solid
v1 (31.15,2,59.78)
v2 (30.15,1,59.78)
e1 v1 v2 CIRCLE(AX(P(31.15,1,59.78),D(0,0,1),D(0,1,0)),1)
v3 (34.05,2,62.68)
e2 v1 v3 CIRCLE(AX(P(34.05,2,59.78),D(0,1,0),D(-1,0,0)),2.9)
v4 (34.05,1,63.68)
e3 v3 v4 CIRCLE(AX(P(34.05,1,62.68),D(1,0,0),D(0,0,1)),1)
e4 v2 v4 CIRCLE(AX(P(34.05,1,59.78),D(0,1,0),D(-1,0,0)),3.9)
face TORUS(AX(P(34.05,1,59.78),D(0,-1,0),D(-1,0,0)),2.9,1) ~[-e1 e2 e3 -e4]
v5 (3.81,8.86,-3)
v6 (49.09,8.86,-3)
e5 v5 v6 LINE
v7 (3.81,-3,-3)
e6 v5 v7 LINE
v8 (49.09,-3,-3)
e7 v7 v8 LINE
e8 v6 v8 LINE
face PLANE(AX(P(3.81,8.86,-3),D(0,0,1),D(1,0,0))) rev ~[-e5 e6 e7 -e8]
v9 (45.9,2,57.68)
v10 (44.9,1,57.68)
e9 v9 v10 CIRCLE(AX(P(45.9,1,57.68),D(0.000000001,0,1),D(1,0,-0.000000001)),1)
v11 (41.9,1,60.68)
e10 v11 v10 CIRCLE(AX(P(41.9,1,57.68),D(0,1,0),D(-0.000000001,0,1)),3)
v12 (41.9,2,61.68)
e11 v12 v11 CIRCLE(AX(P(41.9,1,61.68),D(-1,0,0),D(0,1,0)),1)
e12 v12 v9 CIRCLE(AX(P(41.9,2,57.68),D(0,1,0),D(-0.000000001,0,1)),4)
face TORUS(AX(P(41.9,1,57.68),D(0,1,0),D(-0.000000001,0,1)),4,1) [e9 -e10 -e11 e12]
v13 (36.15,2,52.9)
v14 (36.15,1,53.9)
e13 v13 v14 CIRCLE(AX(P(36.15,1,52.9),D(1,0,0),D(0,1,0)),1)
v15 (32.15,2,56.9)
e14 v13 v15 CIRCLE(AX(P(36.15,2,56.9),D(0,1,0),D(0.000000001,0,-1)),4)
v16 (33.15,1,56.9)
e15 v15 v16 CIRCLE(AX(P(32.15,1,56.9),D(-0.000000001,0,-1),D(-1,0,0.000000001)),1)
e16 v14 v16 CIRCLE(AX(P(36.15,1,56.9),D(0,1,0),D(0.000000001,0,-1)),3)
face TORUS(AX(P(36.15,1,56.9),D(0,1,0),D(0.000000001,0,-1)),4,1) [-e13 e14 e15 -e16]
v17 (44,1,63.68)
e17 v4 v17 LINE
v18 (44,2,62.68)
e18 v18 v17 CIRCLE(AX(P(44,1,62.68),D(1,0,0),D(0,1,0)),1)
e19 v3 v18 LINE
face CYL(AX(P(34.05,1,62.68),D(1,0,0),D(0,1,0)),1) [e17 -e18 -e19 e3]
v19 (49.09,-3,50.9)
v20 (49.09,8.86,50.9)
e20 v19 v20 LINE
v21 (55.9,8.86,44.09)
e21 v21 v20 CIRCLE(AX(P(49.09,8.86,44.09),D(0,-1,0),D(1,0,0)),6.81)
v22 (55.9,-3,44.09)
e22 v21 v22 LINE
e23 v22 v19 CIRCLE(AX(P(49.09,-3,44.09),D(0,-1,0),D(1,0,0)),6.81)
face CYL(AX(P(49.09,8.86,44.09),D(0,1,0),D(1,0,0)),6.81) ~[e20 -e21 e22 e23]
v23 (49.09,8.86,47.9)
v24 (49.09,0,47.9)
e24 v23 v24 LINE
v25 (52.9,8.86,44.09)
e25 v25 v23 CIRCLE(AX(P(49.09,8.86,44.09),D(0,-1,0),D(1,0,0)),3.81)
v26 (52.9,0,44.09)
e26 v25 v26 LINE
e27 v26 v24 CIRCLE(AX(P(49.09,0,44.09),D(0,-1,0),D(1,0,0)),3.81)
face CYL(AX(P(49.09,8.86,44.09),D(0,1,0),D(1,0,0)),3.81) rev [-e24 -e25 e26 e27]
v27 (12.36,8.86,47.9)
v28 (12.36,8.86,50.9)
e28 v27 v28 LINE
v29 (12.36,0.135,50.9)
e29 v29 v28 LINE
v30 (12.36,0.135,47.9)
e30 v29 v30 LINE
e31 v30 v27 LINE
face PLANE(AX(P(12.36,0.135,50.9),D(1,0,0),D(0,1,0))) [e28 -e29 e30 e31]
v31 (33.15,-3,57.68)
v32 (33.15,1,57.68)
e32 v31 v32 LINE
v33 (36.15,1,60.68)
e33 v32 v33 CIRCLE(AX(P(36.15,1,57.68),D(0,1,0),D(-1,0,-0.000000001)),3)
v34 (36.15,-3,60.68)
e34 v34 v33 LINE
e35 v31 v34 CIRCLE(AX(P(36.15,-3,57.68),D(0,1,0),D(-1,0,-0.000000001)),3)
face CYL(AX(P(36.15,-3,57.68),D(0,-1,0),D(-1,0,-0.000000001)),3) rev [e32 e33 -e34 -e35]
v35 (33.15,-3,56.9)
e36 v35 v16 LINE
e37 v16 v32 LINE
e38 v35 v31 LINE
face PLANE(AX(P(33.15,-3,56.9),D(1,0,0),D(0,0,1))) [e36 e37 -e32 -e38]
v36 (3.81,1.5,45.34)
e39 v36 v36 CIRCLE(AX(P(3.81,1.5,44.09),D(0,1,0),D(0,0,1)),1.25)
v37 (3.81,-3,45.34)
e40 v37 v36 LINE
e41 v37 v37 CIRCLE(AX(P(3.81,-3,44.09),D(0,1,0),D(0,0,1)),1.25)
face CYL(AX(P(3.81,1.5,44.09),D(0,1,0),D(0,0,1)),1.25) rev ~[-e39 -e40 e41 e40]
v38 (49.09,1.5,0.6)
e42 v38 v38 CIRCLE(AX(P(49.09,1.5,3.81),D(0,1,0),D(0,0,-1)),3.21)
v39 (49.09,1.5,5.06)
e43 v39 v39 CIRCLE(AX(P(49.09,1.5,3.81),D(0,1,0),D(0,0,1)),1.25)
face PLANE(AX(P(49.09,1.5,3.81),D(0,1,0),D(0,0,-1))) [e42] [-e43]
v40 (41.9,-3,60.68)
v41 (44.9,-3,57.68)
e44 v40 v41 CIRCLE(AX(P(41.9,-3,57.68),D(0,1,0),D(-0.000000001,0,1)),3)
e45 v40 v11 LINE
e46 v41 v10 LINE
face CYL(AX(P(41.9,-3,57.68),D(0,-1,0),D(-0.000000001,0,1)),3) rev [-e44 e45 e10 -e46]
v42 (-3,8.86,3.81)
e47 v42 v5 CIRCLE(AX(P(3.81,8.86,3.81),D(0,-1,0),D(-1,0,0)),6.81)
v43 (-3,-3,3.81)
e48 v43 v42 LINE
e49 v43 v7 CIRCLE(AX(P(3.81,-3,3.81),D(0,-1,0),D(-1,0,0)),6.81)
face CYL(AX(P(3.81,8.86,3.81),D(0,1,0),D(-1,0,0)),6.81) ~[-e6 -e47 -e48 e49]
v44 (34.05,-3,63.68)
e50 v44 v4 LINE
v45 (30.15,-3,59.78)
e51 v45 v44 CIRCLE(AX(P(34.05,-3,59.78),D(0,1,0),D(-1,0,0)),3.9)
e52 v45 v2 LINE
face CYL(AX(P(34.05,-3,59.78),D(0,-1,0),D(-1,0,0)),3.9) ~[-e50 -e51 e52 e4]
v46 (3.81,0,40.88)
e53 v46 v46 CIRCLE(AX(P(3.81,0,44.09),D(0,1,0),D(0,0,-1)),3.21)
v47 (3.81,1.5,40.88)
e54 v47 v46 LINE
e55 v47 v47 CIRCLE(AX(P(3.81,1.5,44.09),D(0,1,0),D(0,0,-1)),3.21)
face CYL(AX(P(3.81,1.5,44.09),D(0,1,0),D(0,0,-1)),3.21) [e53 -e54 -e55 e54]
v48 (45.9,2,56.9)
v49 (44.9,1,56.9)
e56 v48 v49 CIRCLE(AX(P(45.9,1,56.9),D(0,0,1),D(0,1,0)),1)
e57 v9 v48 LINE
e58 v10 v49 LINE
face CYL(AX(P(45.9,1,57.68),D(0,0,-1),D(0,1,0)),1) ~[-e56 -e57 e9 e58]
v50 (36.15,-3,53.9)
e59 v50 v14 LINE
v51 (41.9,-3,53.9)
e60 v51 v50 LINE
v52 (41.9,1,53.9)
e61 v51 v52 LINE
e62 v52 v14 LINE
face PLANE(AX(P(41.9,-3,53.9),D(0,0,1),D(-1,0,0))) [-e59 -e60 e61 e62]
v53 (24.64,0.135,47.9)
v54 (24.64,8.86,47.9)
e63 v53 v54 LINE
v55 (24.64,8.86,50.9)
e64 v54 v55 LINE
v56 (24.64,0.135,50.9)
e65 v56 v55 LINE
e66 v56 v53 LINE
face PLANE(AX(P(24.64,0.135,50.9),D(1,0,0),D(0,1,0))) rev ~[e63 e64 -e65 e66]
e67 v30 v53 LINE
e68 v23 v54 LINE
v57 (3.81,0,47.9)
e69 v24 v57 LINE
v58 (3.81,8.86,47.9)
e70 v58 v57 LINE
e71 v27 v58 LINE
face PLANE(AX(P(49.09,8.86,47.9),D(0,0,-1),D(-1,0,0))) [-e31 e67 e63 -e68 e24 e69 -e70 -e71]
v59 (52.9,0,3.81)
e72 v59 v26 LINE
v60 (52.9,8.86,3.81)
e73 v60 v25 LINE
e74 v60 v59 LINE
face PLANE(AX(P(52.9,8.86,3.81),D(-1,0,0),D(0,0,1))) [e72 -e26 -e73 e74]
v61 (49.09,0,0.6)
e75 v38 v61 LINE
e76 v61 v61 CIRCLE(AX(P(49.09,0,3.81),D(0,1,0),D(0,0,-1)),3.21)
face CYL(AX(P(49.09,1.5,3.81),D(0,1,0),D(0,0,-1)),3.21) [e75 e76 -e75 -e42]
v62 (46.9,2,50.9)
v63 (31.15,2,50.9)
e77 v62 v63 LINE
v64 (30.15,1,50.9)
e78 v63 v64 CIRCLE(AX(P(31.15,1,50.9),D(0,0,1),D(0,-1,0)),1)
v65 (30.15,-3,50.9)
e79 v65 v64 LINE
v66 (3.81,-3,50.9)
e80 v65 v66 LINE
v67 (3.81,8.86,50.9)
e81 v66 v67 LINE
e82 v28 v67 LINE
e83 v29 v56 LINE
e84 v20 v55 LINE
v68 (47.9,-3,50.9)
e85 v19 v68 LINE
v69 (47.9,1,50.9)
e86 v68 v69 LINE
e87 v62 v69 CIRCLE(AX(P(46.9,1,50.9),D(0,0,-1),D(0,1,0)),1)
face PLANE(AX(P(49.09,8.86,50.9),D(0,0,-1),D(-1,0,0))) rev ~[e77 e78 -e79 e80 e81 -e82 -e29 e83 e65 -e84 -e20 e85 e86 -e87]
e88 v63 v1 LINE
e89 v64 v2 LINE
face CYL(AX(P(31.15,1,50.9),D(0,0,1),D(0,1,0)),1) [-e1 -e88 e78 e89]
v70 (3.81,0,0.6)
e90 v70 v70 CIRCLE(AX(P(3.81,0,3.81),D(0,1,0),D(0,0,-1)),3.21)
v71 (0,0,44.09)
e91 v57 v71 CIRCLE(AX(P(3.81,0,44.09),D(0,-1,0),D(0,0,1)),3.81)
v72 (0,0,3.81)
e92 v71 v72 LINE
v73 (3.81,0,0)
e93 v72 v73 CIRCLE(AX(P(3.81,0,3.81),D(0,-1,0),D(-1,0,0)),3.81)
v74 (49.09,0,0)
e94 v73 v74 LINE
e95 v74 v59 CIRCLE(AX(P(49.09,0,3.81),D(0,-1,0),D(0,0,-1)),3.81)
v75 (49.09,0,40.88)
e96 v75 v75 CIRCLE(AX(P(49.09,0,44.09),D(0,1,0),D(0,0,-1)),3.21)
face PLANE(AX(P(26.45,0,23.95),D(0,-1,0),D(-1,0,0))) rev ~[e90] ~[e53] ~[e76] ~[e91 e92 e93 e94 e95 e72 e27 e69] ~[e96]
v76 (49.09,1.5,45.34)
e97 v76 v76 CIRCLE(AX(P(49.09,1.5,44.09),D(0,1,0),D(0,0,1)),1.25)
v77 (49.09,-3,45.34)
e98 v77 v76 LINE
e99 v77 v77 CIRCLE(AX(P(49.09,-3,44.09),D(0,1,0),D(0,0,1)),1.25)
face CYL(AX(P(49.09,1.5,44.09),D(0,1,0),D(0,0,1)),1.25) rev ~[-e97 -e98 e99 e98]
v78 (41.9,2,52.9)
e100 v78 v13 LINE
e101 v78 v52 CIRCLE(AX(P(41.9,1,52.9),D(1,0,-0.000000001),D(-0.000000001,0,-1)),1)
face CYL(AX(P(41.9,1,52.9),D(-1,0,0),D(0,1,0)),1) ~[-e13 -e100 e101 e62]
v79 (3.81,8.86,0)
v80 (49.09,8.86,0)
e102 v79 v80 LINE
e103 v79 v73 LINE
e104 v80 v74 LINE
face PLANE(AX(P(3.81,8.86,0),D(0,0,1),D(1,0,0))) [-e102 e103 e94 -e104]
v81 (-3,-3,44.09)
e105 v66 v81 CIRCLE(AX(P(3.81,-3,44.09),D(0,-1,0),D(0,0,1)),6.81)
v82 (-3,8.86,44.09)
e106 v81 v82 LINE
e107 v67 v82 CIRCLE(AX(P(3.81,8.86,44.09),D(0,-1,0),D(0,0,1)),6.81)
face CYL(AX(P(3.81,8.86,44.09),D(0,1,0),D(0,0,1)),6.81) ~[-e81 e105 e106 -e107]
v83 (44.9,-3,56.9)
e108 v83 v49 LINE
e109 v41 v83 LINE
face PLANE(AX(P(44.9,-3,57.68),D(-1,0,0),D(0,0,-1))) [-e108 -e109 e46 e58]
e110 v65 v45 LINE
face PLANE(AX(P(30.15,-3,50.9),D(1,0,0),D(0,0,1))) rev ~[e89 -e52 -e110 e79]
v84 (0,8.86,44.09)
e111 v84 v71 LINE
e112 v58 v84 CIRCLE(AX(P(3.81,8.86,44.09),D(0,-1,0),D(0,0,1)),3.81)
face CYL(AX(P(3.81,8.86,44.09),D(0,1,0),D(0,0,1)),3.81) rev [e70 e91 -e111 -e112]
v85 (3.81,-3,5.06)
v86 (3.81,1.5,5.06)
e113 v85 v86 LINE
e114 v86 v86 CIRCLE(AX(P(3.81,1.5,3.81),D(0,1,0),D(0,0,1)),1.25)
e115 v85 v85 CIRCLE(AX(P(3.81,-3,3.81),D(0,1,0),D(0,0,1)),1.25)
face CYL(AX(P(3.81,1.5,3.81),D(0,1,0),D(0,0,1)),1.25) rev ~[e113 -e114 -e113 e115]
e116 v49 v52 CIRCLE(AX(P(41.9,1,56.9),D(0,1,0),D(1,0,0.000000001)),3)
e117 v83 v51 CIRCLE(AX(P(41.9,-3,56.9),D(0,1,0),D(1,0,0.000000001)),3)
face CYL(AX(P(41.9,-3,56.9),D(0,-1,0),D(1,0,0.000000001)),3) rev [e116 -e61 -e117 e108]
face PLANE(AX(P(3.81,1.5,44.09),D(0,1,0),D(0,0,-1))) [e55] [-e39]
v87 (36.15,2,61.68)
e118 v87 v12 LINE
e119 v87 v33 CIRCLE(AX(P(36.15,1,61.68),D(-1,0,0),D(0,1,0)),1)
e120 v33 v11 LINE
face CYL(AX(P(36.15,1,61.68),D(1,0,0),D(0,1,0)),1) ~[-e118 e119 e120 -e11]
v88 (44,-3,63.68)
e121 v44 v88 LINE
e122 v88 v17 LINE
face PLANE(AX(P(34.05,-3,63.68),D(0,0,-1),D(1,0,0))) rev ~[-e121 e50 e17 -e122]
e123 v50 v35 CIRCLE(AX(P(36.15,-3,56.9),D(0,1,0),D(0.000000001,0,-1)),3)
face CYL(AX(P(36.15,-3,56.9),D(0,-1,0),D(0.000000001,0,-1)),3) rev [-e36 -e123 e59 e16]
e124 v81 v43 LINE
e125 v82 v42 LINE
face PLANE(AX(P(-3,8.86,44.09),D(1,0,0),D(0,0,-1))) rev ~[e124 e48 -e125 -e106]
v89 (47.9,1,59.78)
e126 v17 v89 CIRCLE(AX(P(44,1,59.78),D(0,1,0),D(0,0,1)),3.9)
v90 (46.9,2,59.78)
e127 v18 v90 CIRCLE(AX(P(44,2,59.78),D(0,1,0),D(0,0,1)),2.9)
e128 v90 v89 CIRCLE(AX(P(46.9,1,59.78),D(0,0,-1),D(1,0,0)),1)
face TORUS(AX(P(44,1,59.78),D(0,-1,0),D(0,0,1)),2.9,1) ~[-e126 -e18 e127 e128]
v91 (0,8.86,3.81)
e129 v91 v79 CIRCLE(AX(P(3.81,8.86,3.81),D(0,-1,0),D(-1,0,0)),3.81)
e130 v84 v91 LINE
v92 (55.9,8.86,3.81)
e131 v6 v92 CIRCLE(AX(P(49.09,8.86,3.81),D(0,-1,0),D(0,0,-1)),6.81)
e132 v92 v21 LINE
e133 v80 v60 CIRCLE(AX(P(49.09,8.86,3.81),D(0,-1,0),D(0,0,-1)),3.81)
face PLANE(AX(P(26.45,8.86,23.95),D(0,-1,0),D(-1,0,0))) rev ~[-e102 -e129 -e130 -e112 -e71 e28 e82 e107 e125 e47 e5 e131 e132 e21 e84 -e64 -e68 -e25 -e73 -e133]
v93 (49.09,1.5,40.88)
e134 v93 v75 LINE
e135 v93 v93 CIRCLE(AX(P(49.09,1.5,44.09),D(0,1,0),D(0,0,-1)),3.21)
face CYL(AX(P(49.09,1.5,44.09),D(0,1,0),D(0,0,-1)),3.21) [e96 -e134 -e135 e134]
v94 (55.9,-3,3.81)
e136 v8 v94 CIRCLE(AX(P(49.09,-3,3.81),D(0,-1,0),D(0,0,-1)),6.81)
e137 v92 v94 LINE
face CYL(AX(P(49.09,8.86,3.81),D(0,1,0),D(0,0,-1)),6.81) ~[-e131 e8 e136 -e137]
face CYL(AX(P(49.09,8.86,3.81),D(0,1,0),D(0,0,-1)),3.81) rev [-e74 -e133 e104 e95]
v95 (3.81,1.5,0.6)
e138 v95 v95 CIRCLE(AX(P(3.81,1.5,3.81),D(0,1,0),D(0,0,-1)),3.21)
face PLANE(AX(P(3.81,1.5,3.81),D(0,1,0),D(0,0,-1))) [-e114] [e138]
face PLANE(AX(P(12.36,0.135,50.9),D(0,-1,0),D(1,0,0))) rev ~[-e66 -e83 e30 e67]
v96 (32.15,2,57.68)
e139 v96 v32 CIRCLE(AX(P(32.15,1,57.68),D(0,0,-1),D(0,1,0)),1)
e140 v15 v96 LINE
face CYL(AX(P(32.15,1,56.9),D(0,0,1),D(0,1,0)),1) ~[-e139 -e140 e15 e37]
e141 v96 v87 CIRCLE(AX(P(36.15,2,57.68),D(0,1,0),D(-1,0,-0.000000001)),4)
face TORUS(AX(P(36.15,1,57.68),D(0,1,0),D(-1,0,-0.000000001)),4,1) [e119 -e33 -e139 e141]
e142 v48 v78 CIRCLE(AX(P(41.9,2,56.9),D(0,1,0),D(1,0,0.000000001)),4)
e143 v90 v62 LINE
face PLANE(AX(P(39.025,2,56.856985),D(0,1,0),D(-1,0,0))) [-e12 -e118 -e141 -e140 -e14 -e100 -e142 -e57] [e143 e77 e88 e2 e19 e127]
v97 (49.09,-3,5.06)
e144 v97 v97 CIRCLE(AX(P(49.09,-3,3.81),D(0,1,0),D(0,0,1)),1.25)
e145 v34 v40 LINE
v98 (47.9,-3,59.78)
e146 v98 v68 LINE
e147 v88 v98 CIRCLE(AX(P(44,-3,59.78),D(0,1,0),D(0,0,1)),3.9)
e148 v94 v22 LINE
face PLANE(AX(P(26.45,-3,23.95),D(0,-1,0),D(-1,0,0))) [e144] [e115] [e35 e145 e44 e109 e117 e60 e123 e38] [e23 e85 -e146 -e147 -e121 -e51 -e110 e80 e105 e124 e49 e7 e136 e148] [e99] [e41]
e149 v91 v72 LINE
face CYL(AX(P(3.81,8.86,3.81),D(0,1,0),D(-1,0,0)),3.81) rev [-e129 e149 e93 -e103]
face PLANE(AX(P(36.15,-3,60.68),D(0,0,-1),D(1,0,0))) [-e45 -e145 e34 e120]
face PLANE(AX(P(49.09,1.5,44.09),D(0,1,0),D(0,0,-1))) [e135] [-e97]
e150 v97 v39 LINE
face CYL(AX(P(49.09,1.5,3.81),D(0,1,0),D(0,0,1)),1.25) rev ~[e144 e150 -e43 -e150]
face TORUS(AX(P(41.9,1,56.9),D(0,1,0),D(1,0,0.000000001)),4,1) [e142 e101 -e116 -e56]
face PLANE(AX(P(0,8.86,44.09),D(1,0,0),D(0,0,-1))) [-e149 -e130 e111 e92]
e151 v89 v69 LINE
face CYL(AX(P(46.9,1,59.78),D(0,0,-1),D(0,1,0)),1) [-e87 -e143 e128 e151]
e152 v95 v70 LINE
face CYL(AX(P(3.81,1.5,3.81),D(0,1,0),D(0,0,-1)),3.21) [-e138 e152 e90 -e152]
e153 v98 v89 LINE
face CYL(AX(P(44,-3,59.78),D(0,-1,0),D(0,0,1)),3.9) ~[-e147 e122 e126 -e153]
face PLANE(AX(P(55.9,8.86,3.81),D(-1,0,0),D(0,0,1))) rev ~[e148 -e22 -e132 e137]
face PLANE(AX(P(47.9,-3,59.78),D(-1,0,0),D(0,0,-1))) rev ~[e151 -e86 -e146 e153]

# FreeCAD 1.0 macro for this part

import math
import FreeCAD as App
import Part
import Sketcher
Q = App.Units.Quantity


def edges_at(feature, points):
    """Names of the edges that pass closest to the given points."""
    edges = feature.Shape.Edges
    near = lambda p: min(range(len(edges)), key=lambda i: edges[i].distToShape(Part.Vertex(*p))[0])
    return sorted({f"Edge{near(p) + 1}" for p in points})

doc = App.newDocument("Part")
body = doc.addObject("PartDesign::Body", "Body")

sketch1 = doc.addObject("Sketcher::SketchObject", "Sketch")
body.addObject(sketch1)
sketch1.AttachmentSupport = (doc.XZ_Plane, [""])
sketch1.MapMode = "FlatFace"
sketch1.addGeometry(Part.LineSegment(App.Vector(49, -3, 0), App.Vector(4, -3, 0)), False)
sketch1.addGeometry(Part.ArcOfCircle(Part.Circle(App.Vector(4, 4, 0), App.Vector(0, 0, 1), 7), math.radians(180), math.radians(270)), False)
sketch1.addGeometry(Part.LineSegment(App.Vector(-3, 4, 0), App.Vector(-3, 44, 0)), False)
sketch1.addGeometry(Part.ArcOfCircle(Part.Circle(App.Vector(4, 44, 0), App.Vector(0, 0, 1), 7), math.radians(90), math.radians(180)), False)
sketch1.addGeometry(Part.LineSegment(App.Vector(4, 51, 0), App.Vector(49, 51, 0)), False)
sketch1.addGeometry(Part.ArcOfCircle(Part.Circle(App.Vector(49, 44, 0), App.Vector(0, 0, 1), 7), math.radians(0), math.radians(90)), False)
sketch1.addGeometry(Part.LineSegment(App.Vector(56, 44, 0), App.Vector(56, 4, 0)), False)
sketch1.addGeometry(Part.ArcOfCircle(Part.Circle(App.Vector(49, 4, 0), App.Vector(0, 0, 1), 7), math.radians(-90), math.radians(0)), False)
sketch1.addConstraint(Sketcher.Constraint("Tangent", 0, 2, 1, 2))
sketch1.addConstraint(Sketcher.Constraint("Tangent", 1, 1, 2, 1))
sketch1.addConstraint(Sketcher.Constraint("Tangent", 2, 2, 3, 2))
sketch1.addConstraint(Sketcher.Constraint("Tangent", 3, 1, 4, 1))
sketch1.addConstraint(Sketcher.Constraint("Tangent", 4, 2, 5, 2))
sketch1.addConstraint(Sketcher.Constraint("Tangent", 5, 1, 6, 1))
sketch1.addConstraint(Sketcher.Constraint("Tangent", 6, 2, 7, 2))
sketch1.addConstraint(Sketcher.Constraint("Tangent", 7, 1, 0, 1))
sketch1.addConstraint(Sketcher.Constraint("Horizontal", 0))
sketch1.addConstraint(Sketcher.Constraint("Vertical", 2))
sketch1.addConstraint(Sketcher.Constraint("Horizontal", 4))
sketch1.addConstraint(Sketcher.Constraint("Vertical", 6))
sketch1.addConstraint(Sketcher.Constraint("Equal", 1, 3))
sketch1.addConstraint(Sketcher.Constraint("Equal", 3, 5))
sketch1.addConstraint(Sketcher.Constraint("Equal", 5, 7))
sketch1.addConstraint(Sketcher.Constraint("Radius", 1, Q("6.81 mm")))
sketch1.addConstraint(Sketcher.Constraint("DistanceY", 0, 2, -1, 1, Q("3 mm")))
sketch1.addConstraint(Sketcher.Constraint("DistanceX", 1, 1, -1, 1, Q("3 mm")))
sketch1.addConstraint(Sketcher.Constraint("DistanceX", 0, 2, 0, 1, Q("45.28 mm")))
sketch1.addConstraint(Sketcher.Constraint("DistanceY", 2, 1, 2, 2, Q("40.28 mm")))
pad1 = doc.addObject("PartDesign::Pad", "Pad")
body.addObject(pad1)
pad1.Profile = sketch1
pad1.Length = 3

sketch2 = doc.addObject("Sketcher::SketchObject", "Sketch001")
body.addObject(sketch2)
sketch2.AttachmentSupport = (doc.XZ_Plane, [""])
sketch2.MapMode = "FlatFace"
sketch2.addGeometry(Part.Circle(App.Vector(3.8, 3.8, 0), App.Vector(0, 0, 1), 1.2), False)
sketch2.addConstraint(Sketcher.Constraint("Diameter", 0, Q("2.5 mm")))
sketch2.addConstraint(Sketcher.Constraint("DistanceX", -1, 1, 0, 3, Q("3.81 mm")))
sketch2.addConstraint(Sketcher.Constraint("DistanceY", -1, 1, 0, 3, Q("3.81 mm")))
pocket1 = doc.addObject("PartDesign::Pocket", "Pocket")
body.addObject(pocket1)
pocket1.Profile = sketch2
pocket1.Type = "UpToFirst"
pocket1.Reversed = True

sketch3 = doc.addObject("Sketcher::SketchObject", "Sketch002")
body.addObject(sketch3)
sketch3.AttachmentSupport = (doc.XZ_Plane, [""])
sketch3.MapMode = "FlatFace"
sketch3.addGeometry(Part.Circle(App.Vector(3.8, 44.1, 0), App.Vector(0, 0, 1), 1.2), False)
sketch3.addConstraint(Sketcher.Constraint("Diameter", 0, Q("2.5 mm")))
sketch3.addConstraint(Sketcher.Constraint("DistanceX", -1, 1, 0, 3, Q("3.81 mm")))
sketch3.addConstraint(Sketcher.Constraint("DistanceY", -1, 1, 0, 3, Q("44.09 mm")))
pocket2 = doc.addObject("PartDesign::Pocket", "Pocket001")
body.addObject(pocket2)
pocket2.Profile = sketch3
pocket2.Type = "UpToFirst"
pocket2.Reversed = True

sketch4 = doc.addObject("Sketcher::SketchObject", "Sketch003")
body.addObject(sketch4)
sketch4.AttachmentSupport = (doc.XZ_Plane, [""])
sketch4.MapMode = "FlatFace"
sketch4.addGeometry(Part.Circle(App.Vector(49.1, 44.1, 0), App.Vector(0, 0, 1), 1.2), False)
sketch4.addConstraint(Sketcher.Constraint("Diameter", 0, Q("2.5 mm")))
sketch4.addConstraint(Sketcher.Constraint("DistanceX", -1, 1, 0, 3, Q("49.09 mm")))
sketch4.addConstraint(Sketcher.Constraint("DistanceY", -1, 1, 0, 3, Q("44.09 mm")))
pocket3 = doc.addObject("PartDesign::Pocket", "Pocket002")
body.addObject(pocket3)
pocket3.Profile = sketch4
pocket3.Type = "UpToFirst"
pocket3.Reversed = True

sketch5 = doc.addObject("Sketcher::SketchObject", "Sketch004")
body.addObject(sketch5)
sketch5.AttachmentSupport = (doc.XZ_Plane, [""])
sketch5.MapMode = "FlatFace"
sketch5.addGeometry(Part.Circle(App.Vector(49.1, 3.8, 0), App.Vector(0, 0, 1), 1.2), False)
sketch5.addConstraint(Sketcher.Constraint("Diameter", 0, Q("2.5 mm")))
sketch5.addConstraint(Sketcher.Constraint("DistanceX", -1, 1, 0, 3, Q("49.09 mm")))
sketch5.addConstraint(Sketcher.Constraint("DistanceY", -1, 1, 0, 3, Q("3.81 mm")))
pocket4 = doc.addObject("PartDesign::Pocket", "Pocket003")
body.addObject(pocket4)
pocket4.Profile = sketch5
pocket4.Type = "UpToFirst"
pocket4.Reversed = True

sketch6 = doc.addObject("Sketcher::SketchObject", "Sketch005")
body.addObject(sketch6)
sketch6.AttachmentSupport = (doc.XZ_Plane, [""])
sketch6.MapMode = "FlatFace"
sketch6.AttachmentOffset = App.Placement(App.Vector(0, 0, -8.86), App.Rotation())
sketch6.addGeometry(Part.ArcOfCircle(Part.Circle(App.Vector(3.8, 3.8, 0), App.Vector(0, 0, 1), 6.8), math.radians(180), math.radians(270)), False)
sketch6.addGeometry(Part.LineSegment(App.Vector(-3, 3.8, 0), App.Vector(-3, 44.1, 0)), False)
sketch6.addGeometry(Part.ArcOfCircle(Part.Circle(App.Vector(3.8, 44.1, 0), App.Vector(0, 0, 1), 6.8), math.radians(90), math.radians(180)), False)
sketch6.addGeometry(Part.LineSegment(App.Vector(3.8, 50.9, 0), App.Vector(49.1, 50.9, 0)), False)
sketch6.addGeometry(Part.ArcOfCircle(Part.Circle(App.Vector(49.1, 44.1, 0), App.Vector(0, 0, 1), 6.8), math.radians(0), math.radians(90)), False)
sketch6.addGeometry(Part.LineSegment(App.Vector(55.9, 44.1, 0), App.Vector(55.9, 3.8, 0)), False)
sketch6.addGeometry(Part.ArcOfCircle(Part.Circle(App.Vector(49.1, 3.8, 0), App.Vector(0, 0, 1), 6.8), math.radians(-90), math.radians(0)), False)
sketch6.addGeometry(Part.LineSegment(App.Vector(49.1, -3, 0), App.Vector(3.8, -3, 0)), False)
sketch6.addGeometry(Part.LineSegment(App.Vector(52.9, 3.8, 0), App.Vector(52.9, 44.1, 0)), False)
sketch6.addGeometry(Part.ArcOfCircle(Part.Circle(App.Vector(49.1, 44.1, 0), App.Vector(0, 0, 1), 3.8), math.radians(0), math.radians(90)), False)
sketch6.addGeometry(Part.LineSegment(App.Vector(49.1, 47.9, 0), App.Vector(3.8, 47.9, 0)), False)
sketch6.addGeometry(Part.ArcOfCircle(Part.Circle(App.Vector(3.8, 44.1, 0), App.Vector(0, 0, 1), 3.8), math.radians(90), math.radians(180)), False)
sketch6.addGeometry(Part.LineSegment(App.Vector(0, 44.1, 0), App.Vector(0, 3.8, 0)), False)
sketch6.addGeometry(Part.ArcOfCircle(Part.Circle(App.Vector(3.8, 3.8, 0), App.Vector(0, 0, 1), 3.8), math.radians(-180), math.radians(-90)), False)
sketch6.addGeometry(Part.LineSegment(App.Vector(3.8, 0, 0), App.Vector(49.1, 0, 0)), False)
sketch6.addGeometry(Part.ArcOfCircle(Part.Circle(App.Vector(49.1, 3.8, 0), App.Vector(0, 0, 1), 3.8), math.radians(-90), math.radians(0)), False)
sketch6.addConstraint(Sketcher.Constraint("Tangent", 0, 1, 1, 1))
sketch6.addConstraint(Sketcher.Constraint("Tangent", 1, 2, 2, 2))
sketch6.addConstraint(Sketcher.Constraint("Tangent", 2, 1, 3, 1))
sketch6.addConstraint(Sketcher.Constraint("Tangent", 3, 2, 4, 2))
sketch6.addConstraint(Sketcher.Constraint("Tangent", 4, 1, 5, 1))
sketch6.addConstraint(Sketcher.Constraint("Tangent", 5, 2, 6, 2))
sketch6.addConstraint(Sketcher.Constraint("Tangent", 6, 1, 7, 1))
sketch6.addConstraint(Sketcher.Constraint("Tangent", 7, 2, 0, 2))
sketch6.addConstraint(Sketcher.Constraint("Tangent", 8, 2, 9, 1))
sketch6.addConstraint(Sketcher.Constraint("Tangent", 9, 2, 10, 1))
sketch6.addConstraint(Sketcher.Constraint("Tangent", 10, 2, 11, 1))
sketch6.addConstraint(Sketcher.Constraint("Tangent", 11, 2, 12, 1))
sketch6.addConstraint(Sketcher.Constraint("Tangent", 12, 2, 13, 1))
sketch6.addConstraint(Sketcher.Constraint("Tangent", 13, 2, 14, 1))
sketch6.addConstraint(Sketcher.Constraint("Tangent", 14, 2, 15, 1))
sketch6.addConstraint(Sketcher.Constraint("Tangent", 15, 2, 8, 1))
sketch6.addConstraint(Sketcher.Constraint("Vertical", 1))
sketch6.addConstraint(Sketcher.Constraint("Horizontal", 3))
sketch6.addConstraint(Sketcher.Constraint("Vertical", 5))
sketch6.addConstraint(Sketcher.Constraint("Horizontal", 7))
sketch6.addConstraint(Sketcher.Constraint("Vertical", 8))
sketch6.addConstraint(Sketcher.Constraint("Horizontal", 10))
sketch6.addConstraint(Sketcher.Constraint("Vertical", 12))
sketch6.addConstraint(Sketcher.Constraint("Horizontal", 14))
sketch6.addConstraint(Sketcher.Constraint("Coincident", 9, 3, 4, 3))
sketch6.addConstraint(Sketcher.Constraint("Coincident", 11, 3, 2, 3))
sketch6.addConstraint(Sketcher.Constraint("Coincident", 13, 3, 0, 3))
sketch6.addConstraint(Sketcher.Constraint("Equal", 0, 2))
sketch6.addConstraint(Sketcher.Constraint("Equal", 2, 4))
sketch6.addConstraint(Sketcher.Constraint("Equal", 4, 6))
sketch6.addConstraint(Sketcher.Constraint("Equal", 13, 15))
sketch6.addConstraint(Sketcher.Constraint("PointOnObject", 11, 2, -2))
sketch6.addConstraint(Sketcher.Constraint("PointOnObject", 13, 2, -1))
sketch6.addConstraint(Sketcher.Constraint("Radius", 0, Q("6.81 mm")))
sketch6.addConstraint(Sketcher.Constraint("Radius", 9, Q("3.81 mm")))
sketch6.addConstraint(Sketcher.Constraint("DistanceX", 3, 1, 3, 2, Q("45.28 mm")))
sketch6.addConstraint(Sketcher.Constraint("DistanceY", 1, 1, 1, 2, Q("40.28 mm")))
pad2 = doc.addObject("PartDesign::Pad", "Pad001")
body.addObject(pad2)
pad2.Profile = sketch6
pad2.Length = 8.86

sketch7 = doc.addObject("Sketcher::SketchObject", "Sketch006")
body.addObject(sketch7)
sketch7.AttachmentSupport = (doc.XZ_Plane, [""])
sketch7.MapMode = "FlatFace"
sketch7.AttachmentOffset = App.Placement(App.Vector(0, 0, -1.5), App.Rotation())
sketch7.addGeometry(Part.Circle(App.Vector(49.1, 3.8, 0), App.Vector(0, 0, 1), 3.2), False)
sketch7.addGeometry(Part.Circle(App.Vector(49.1, 3.8, 0), App.Vector(0, 0, 1), 1.2), False)
sketch7.addGeometry(Part.Circle(App.Vector(49.1, 44.1, 0), App.Vector(0, 0, 1), 3.2), False)
sketch7.addGeometry(Part.Circle(App.Vector(49.1, 44.1, 0), App.Vector(0, 0, 1), 1.2), False)
sketch7.addGeometry(Part.Circle(App.Vector(3.8, 44.1, 0), App.Vector(0, 0, 1), 3.2), False)
sketch7.addGeometry(Part.Circle(App.Vector(3.8, 44.1, 0), App.Vector(0, 0, 1), 1.2), False)
sketch7.addGeometry(Part.Circle(App.Vector(3.8, 3.8, 0), App.Vector(0, 0, 1), 3.2), False)
sketch7.addGeometry(Part.Circle(App.Vector(3.8, 3.8, 0), App.Vector(0, 0, 1), 1.2), False)
sketch7.addConstraint(Sketcher.Constraint("Coincident", 1, 3, 0, 3))
sketch7.addConstraint(Sketcher.Constraint("Coincident", 3, 3, 2, 3))
sketch7.addConstraint(Sketcher.Constraint("Coincident", 5, 3, 4, 3))
sketch7.addConstraint(Sketcher.Constraint("Coincident", 7, 3, 6, 3))
sketch7.addConstraint(Sketcher.Constraint("Equal", 0, 2))
sketch7.addConstraint(Sketcher.Constraint("Equal", 1, 3))
sketch7.addConstraint(Sketcher.Constraint("Equal", 2, 4))
sketch7.addConstraint(Sketcher.Constraint("Equal", 3, 5))
sketch7.addConstraint(Sketcher.Constraint("Equal", 4, 6))
sketch7.addConstraint(Sketcher.Constraint("Equal", 5, 7))
sketch7.addConstraint(Sketcher.Constraint("Horizontal", 3, 3, 4, 3))
sketch7.addConstraint(Sketcher.Constraint("Horizontal", 1, 3, 6, 3))
sketch7.addConstraint(Sketcher.Constraint("Vertical", 1, 3, 2, 3))
sketch7.addConstraint(Sketcher.Constraint("Vertical", 5, 3, 6, 3))
sketch7.addConstraint(Sketcher.Constraint("Diameter", 1, Q("2.5 mm")))
sketch7.addConstraint(Sketcher.Constraint("Diameter", 0, Q("6.42 mm")))
sketch7.addConstraint(Sketcher.Constraint("DistanceX", -1, 1, 0, 3, Q("49.09 mm")))
sketch7.addConstraint(Sketcher.Constraint("DistanceY", -1, 1, 0, 3, Q("3.81 mm")))
sketch7.addConstraint(Sketcher.Constraint("DistanceY", -1, 1, 2, 3, Q("44.09 mm")))
sketch7.addConstraint(Sketcher.Constraint("DistanceX", -1, 1, 4, 3, Q("3.81 mm")))
pad3 = doc.addObject("PartDesign::Pad", "Pad002")
body.addObject(pad3)
pad3.Profile = sketch7
pad3.Length = 1.5

sketch8 = doc.addObject("Sketcher::SketchObject", "Sketch007")
body.addObject(sketch8)
sketch8.AttachmentSupport = (doc.XY_Plane, [""])
sketch8.MapMode = "FlatFace"
sketch8.AttachmentOffset = App.Placement(App.Vector(0, 0, 50.9), App.Rotation())
sketch8.addGeometry(Part.LineSegment(App.Vector(12, 9, 0), App.Vector(12, 0, 0)), False)
sketch8.addGeometry(Part.LineSegment(App.Vector(12, 0, 0), App.Vector(25, 0, 0)), False)
sketch8.addGeometry(Part.LineSegment(App.Vector(25, 0, 0), App.Vector(25, 9, 0)), False)
sketch8.addGeometry(Part.LineSegment(App.Vector(25, 9, 0), App.Vector(12, 9, 0)), False)
sketch8.addConstraint(Sketcher.Constraint("Coincident", 0, 2, 1, 1))
sketch8.addConstraint(Sketcher.Constraint("Coincident", 1, 2, 2, 1))
sketch8.addConstraint(Sketcher.Constraint("Coincident", 2, 2, 3, 1))
sketch8.addConstraint(Sketcher.Constraint("Coincident", 3, 2, 0, 1))
sketch8.addConstraint(Sketcher.Constraint("Vertical", 0))
sketch8.addConstraint(Sketcher.Constraint("Horizontal", 1))
sketch8.addConstraint(Sketcher.Constraint("Vertical", 2))
sketch8.addConstraint(Sketcher.Constraint("Horizontal", 3))
sketch8.addConstraint(Sketcher.Constraint("DistanceX", 1, 1, 1, 2, Q("12.28 mm")))
sketch8.addConstraint(Sketcher.Constraint("DistanceY", 0, 2, 0, 1, Q("8.73 mm")))
sketch8.addConstraint(Sketcher.Constraint("DistanceX", -1, 1, 0, 2, Q("12.36 mm")))
sketch8.addConstraint(Sketcher.Constraint("DistanceY", -1, 1, 0, 2, Q("0.135 mm")))
pocket5 = doc.addObject("PartDesign::Pocket", "Pocket004")
body.addObject(pocket5)
pocket5.Profile = sketch8
pocket5.Length = 3

sketch9 = doc.addObject("Sketcher::SketchObject", "Sketch008")
body.addObject(sketch9)
sketch9.AttachmentSupport = (doc.XZ_Plane, [""])
sketch9.MapMode = "FlatFace"
sketch9.AttachmentOffset = App.Placement(App.Vector(0, 0, 3), App.Rotation())
sketch9.addGeometry(Part.LineSegment(App.Vector(30.1, 50.9, 0), App.Vector(47.9, 50.9, 0)), False)
sketch9.addGeometry(Part.LineSegment(App.Vector(47.9, 50.9, 0), App.Vector(47.9, 59.8, 0)), False)
sketch9.addGeometry(Part.ArcOfCircle(Part.Circle(App.Vector(44, 59.8, 0), App.Vector(0, 0, 1), 3.9), math.radians(0), math.radians(90)), False)
sketch9.addGeometry(Part.LineSegment(App.Vector(44, 63.7, 0), App.Vector(34, 63.7, 0)), False)
sketch9.addGeometry(Part.ArcOfCircle(Part.Circle(App.Vector(34, 59.8, 0), App.Vector(0, 0, 1), 3.9), math.radians(90), math.radians(180)), False)
sketch9.addGeometry(Part.LineSegment(App.Vector(30.1, 59.8, 0), App.Vector(30.1, 50.9, 0)), False)
sketch9.addGeometry(Part.LineSegment(App.Vector(41.9, 53.9, 0), App.Vector(36.1, 53.9, 0)), False)
sketch9.addGeometry(Part.ArcOfCircle(Part.Circle(App.Vector(36.1, 56.9, 0), App.Vector(0, 0, 1), 3), math.radians(180), math.radians(270)), False)
sketch9.addGeometry(Part.LineSegment(App.Vector(33.1, 56.9, 0), App.Vector(33.1, 57.7, 0)), False)
sketch9.addGeometry(Part.ArcOfCircle(Part.Circle(App.Vector(36.1, 57.7, 0), App.Vector(0, 0, 1), 3), math.radians(90), math.radians(180)), False)
sketch9.addGeometry(Part.LineSegment(App.Vector(36.1, 60.7, 0), App.Vector(41.9, 60.7, 0)), False)
sketch9.addGeometry(Part.ArcOfCircle(Part.Circle(App.Vector(41.9, 57.7, 0), App.Vector(0, 0, 1), 3), math.radians(0), math.radians(90)), False)
sketch9.addGeometry(Part.LineSegment(App.Vector(44.9, 57.7, 0), App.Vector(44.9, 56.9, 0)), False)
sketch9.addGeometry(Part.ArcOfCircle(Part.Circle(App.Vector(41.9, 56.9, 0), App.Vector(0, 0, 1), 3), math.radians(-90), math.radians(0)), False)
sketch9.addConstraint(Sketcher.Constraint("Coincident", 0, 2, 1, 1))
sketch9.addConstraint(Sketcher.Constraint("Tangent", 1, 2, 2, 1))
sketch9.addConstraint(Sketcher.Constraint("Tangent", 2, 2, 3, 1))
sketch9.addConstraint(Sketcher.Constraint("Tangent", 3, 2, 4, 1))
sketch9.addConstraint(Sketcher.Constraint("Tangent", 4, 2, 5, 1))
sketch9.addConstraint(Sketcher.Constraint("Coincident", 5, 2, 0, 1))
sketch9.addConstraint(Sketcher.Constraint("Tangent", 6, 2, 7, 2))
sketch9.addConstraint(Sketcher.Constraint("Tangent", 7, 1, 8, 1))
sketch9.addConstraint(Sketcher.Constraint("Tangent", 8, 2, 9, 2))
sketch9.addConstraint(Sketcher.Constraint("Tangent", 9, 1, 10, 1))
sketch9.addConstraint(Sketcher.Constraint("Tangent", 10, 2, 11, 2))
sketch9.addConstraint(Sketcher.Constraint("Tangent", 11, 1, 12, 1))
sketch9.addConstraint(Sketcher.Constraint("Tangent", 12, 2, 13, 2))
sketch9.addConstraint(Sketcher.Constraint("Tangent", 13, 1, 6, 1))
sketch9.addConstraint(Sketcher.Constraint("Horizontal", 0))
sketch9.addConstraint(Sketcher.Constraint("Vertical", 1))
sketch9.addConstraint(Sketcher.Constraint("Horizontal", 3))
sketch9.addConstraint(Sketcher.Constraint("Vertical", 5))
sketch9.addConstraint(Sketcher.Constraint("Horizontal", 6))
sketch9.addConstraint(Sketcher.Constraint("Vertical", 8))
sketch9.addConstraint(Sketcher.Constraint("Horizontal", 10))
sketch9.addConstraint(Sketcher.Constraint("Vertical", 12))
sketch9.addConstraint(Sketcher.Constraint("Equal", 2, 4))
sketch9.addConstraint(Sketcher.Constraint("Equal", 7, 9))
sketch9.addConstraint(Sketcher.Constraint("Equal", 9, 11))
sketch9.addConstraint(Sketcher.Constraint("Equal", 11, 13))
sketch9.addConstraint(Sketcher.Constraint("Radius", 7, Q("3 mm")))
sketch9.addConstraint(Sketcher.Constraint("Radius", 2, Q("3.9 mm")))
sketch9.addConstraint(Sketcher.Constraint("DistanceX", -1, 1, 2, 3, Q("44 mm")))
sketch9.addConstraint(Sketcher.Constraint("DistanceX", 13, 3, 0, 2, Q("6 mm")))
sketch9.addConstraint(Sketcher.Constraint("DistanceY", 0, 2, 13, 3, Q("6 mm")))
sketch9.addConstraint(Sketcher.Constraint("DistanceY", 11, 3, 2, 2, Q("6 mm")))
sketch9.addConstraint(Sketcher.Constraint("DistanceX", 4, 2, 9, 3, Q("6 mm")))
sketch9.addConstraint(Sketcher.Constraint("DistanceX", 0, 1, 0, 2, Q("17.75 mm")))
sketch9.addConstraint(Sketcher.Constraint("DistanceY", 1, 1, 1, 2, Q("8.88 mm")))
sketch9.addConstraint(Sketcher.Constraint("DistanceY", -1, 1, 7, 3, Q("56.9 mm")))
pad4 = doc.addObject("PartDesign::Pad", "Pad003")
body.addObject(pad4)
pad4.Profile = sketch9
pad4.Length = 5
pad4.Reversed = True
doc.recompute()

fillet = doc.addObject("PartDesign::Fillet", "Fillet")
body.addObject(fillet)
fillet.Base = (pad4, edges_at(pad4, [
    (47.9, 2, 55.34),
    (30.15, 2, 55.34),
    (31.292, 2, 62.538),
    (39.025, 2, 63.68),
    (46.758, 2, 62.538),
    (39.025, 2, 60.68),
    (34.029, 2, 59.801),
    (33.15, 2, 57.29),
    (34.029, 2, 54.779),
    (39.025, 2, 53.9),
    (44.021, 2, 54.779),
    (44.9, 2, 57.29),
    (44.021, 2, 59.801),
]))
fillet.Radius = 1

doc.recompute()
